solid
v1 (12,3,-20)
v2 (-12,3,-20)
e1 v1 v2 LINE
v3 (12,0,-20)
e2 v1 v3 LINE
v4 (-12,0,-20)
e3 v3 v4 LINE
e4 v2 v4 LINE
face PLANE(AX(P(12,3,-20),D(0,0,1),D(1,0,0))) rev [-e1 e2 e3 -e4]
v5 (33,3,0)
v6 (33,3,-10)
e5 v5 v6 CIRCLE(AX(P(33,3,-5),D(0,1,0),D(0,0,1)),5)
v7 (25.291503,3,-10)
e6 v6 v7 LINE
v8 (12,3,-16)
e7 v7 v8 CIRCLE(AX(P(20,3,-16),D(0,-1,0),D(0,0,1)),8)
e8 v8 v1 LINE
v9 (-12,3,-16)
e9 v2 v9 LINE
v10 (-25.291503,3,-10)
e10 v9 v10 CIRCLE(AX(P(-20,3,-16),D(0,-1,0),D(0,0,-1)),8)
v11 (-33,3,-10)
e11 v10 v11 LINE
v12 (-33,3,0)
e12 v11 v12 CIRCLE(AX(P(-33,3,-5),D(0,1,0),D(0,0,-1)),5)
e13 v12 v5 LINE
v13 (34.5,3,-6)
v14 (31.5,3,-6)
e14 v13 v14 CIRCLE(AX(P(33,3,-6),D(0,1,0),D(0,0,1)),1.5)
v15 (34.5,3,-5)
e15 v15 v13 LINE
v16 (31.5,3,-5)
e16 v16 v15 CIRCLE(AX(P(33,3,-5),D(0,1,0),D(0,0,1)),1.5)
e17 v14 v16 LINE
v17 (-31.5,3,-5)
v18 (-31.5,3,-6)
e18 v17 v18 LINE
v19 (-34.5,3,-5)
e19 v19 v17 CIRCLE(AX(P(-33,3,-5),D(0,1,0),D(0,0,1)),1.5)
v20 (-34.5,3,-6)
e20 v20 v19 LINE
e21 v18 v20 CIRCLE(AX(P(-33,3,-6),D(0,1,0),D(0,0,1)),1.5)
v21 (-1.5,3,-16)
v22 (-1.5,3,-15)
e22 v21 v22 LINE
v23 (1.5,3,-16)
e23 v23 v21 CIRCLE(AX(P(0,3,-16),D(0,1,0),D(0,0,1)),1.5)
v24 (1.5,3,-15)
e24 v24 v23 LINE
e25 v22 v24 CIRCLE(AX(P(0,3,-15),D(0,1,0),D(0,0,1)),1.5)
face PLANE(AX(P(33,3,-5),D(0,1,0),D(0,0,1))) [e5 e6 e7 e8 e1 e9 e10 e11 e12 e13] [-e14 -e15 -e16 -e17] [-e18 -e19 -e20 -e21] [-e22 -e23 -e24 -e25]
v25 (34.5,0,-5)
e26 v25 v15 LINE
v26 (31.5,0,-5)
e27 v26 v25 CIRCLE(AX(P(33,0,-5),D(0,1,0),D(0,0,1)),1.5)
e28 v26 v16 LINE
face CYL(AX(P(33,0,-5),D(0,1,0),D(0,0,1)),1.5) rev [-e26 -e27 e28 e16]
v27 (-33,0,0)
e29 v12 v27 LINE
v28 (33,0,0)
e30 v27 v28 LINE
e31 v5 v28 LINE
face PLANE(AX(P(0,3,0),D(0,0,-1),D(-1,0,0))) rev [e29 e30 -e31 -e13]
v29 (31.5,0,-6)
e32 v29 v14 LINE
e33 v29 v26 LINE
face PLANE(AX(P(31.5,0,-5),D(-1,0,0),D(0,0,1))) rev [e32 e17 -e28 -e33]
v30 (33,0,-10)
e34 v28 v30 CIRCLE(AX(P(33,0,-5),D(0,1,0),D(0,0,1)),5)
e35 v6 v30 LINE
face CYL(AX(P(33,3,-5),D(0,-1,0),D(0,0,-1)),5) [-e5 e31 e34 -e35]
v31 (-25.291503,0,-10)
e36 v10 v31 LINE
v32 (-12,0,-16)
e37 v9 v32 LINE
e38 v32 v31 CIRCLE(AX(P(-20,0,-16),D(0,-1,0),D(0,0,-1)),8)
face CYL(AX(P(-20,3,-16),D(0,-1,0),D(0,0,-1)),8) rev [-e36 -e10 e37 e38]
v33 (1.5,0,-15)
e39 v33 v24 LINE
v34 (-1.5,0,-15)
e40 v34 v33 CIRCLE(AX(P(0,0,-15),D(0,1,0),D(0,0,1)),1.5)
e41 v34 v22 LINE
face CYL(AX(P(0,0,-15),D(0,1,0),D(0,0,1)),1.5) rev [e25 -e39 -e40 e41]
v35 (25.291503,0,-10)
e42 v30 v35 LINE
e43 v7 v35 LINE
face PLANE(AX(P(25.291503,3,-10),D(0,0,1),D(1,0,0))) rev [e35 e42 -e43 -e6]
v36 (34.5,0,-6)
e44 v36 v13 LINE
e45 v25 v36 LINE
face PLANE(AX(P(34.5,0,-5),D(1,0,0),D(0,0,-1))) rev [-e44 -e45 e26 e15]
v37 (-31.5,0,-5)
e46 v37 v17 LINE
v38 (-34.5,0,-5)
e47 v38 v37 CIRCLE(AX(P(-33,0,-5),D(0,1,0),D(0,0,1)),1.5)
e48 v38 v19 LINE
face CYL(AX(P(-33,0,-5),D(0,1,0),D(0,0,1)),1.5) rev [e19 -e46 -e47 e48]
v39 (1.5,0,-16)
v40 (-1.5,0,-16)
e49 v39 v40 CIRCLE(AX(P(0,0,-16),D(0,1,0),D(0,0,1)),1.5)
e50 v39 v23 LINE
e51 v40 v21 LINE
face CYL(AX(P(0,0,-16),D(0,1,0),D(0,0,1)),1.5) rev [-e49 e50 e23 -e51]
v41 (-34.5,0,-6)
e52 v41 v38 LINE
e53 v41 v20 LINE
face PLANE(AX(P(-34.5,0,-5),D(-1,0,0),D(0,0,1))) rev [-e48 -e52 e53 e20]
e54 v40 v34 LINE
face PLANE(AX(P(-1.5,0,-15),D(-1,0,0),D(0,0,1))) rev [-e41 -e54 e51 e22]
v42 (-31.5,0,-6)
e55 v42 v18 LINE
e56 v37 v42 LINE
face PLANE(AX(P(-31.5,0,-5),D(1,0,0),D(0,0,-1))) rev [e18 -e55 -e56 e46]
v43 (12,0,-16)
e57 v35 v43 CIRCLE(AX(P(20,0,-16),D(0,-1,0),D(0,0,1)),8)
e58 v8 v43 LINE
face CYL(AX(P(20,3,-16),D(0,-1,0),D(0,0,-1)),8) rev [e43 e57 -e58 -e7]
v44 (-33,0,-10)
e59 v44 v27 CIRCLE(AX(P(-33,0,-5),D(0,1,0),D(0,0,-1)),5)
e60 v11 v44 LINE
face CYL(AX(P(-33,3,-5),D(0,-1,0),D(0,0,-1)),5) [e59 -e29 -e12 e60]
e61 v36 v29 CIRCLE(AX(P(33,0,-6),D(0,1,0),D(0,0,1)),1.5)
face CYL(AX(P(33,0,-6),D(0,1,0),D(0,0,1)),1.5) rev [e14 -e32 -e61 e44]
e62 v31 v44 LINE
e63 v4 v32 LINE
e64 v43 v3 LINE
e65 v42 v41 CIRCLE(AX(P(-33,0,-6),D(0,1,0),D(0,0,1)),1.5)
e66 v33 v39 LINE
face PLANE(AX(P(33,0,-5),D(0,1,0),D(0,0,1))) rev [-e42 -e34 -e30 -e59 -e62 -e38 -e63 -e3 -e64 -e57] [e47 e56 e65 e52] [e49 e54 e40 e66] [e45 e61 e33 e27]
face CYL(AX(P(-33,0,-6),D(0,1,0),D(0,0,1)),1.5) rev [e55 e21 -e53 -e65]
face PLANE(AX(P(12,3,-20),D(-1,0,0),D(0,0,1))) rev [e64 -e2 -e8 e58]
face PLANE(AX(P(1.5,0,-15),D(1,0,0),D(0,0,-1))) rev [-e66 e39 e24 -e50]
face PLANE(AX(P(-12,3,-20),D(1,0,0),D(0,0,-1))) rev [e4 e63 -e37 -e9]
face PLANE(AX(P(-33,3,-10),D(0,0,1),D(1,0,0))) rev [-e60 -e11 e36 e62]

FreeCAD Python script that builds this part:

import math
import FreeCAD as App
import Part
import Sketcher
from FreeCAD import Vector

doc = App.newDocument("Part")
body = doc.addObject("PartDesign::Body", "Body")

# Sketch on XZ plane
sketch1 = body.newObject("Sketcher::SketchObject", "Sketch")
sketch1.AttachmentSupport = (doc.getObject("XZ_Plane"), [""])
sketch1.MapMode = "FlatFace"
sketch1.addGeometry([
    Part.ArcOfCircle(Part.Circle(Vector(-33, -5, 0), Vector(0, 0, 1), 5), math.radians(90), math.radians(270)),  # 0
    Part.LineSegment(Vector(-33, 0, 0), Vector(33, 0, 0)),  # 1
    Part.ArcOfCircle(Part.Circle(Vector(33, -5, 0), Vector(0, 0, 1), 5), math.radians(-90), math.radians(90)),  # 2
    Part.LineSegment(Vector(33, -10, 0), Vector(25.3, -10, 0)),  # 3
    Part.ArcOfCircle(Part.Circle(Vector(20, -16, 0), Vector(0, 0, 1), 8), math.radians(49), math.radians(180)),  # 4
    Part.LineSegment(Vector(12, -16, 0), Vector(12, -20, 0)),  # 5
    Part.LineSegment(Vector(12, -20, 0), Vector(-12, -20, 0)),  # 6
    Part.LineSegment(Vector(-12, -20, 0), Vector(-12, -16, 0)),  # 7
    Part.ArcOfCircle(Part.Circle(Vector(-20, -16, 0), Vector(0, 0, 1), 8), math.radians(0), math.radians(131)),  # 8
    Part.LineSegment(Vector(-25.3, -10, 0), Vector(-33, -10, 0)),  # 9
], False)
sketch1.addConstraint([
    Sketcher.Constraint("Tangent", 0, 1, 1, 1),
    Sketcher.Constraint("Tangent", 1, 2, 2, 2),
    Sketcher.Constraint("Tangent", 2, 1, 3, 1),
    Sketcher.Constraint("Coincident", 3, 2, 4, 1),
    Sketcher.Constraint("Tangent", 4, 2, 5, 1),
    Sketcher.Constraint("Coincident", 5, 2, 6, 1),
    Sketcher.Constraint("Coincident", 6, 2, 7, 1),
    Sketcher.Constraint("Tangent", 7, 2, 8, 1),
    Sketcher.Constraint("Coincident", 8, 2, 9, 1),
    Sketcher.Constraint("Tangent", 9, 2, 0, 2),
    Sketcher.Constraint("Horizontal", 1),
    Sketcher.Constraint("Horizontal", 3),
    Sketcher.Constraint("Vertical", 5),
    Sketcher.Constraint("Horizontal", 6),
    Sketcher.Constraint("Vertical", 7),
    Sketcher.Constraint("Horizontal", 9),
    Sketcher.Constraint("Equal", 0, 2),
    Sketcher.Constraint("Equal", 4, 8),
    Sketcher.Constraint("Symmetric", 0, 1, 1, 2, -1, 1),
    Sketcher.Constraint("Symmetric", 4, 3, 8, 3, -2),
    Sketcher.Constraint("Radius", 0, 5.0),
    Sketcher.Constraint("Radius", 4, 8.0),
    Sketcher.Constraint("DistanceX", 1, 1, 1, 2, 66.0),
    Sketcher.Constraint("DistanceX", 6, 2, 6, 1, 24.0),
    Sketcher.Constraint("DistanceY", 5, 2, 5, 1, 4.0),
    Sketcher.Constraint("DistanceY", 4, 3, -1, 1, 16.0),
])
pad1 = body.newObject("PartDesign::Pad", "Pad")
pad1.Profile = sketch1
pad1.Length = 3
pad1.Reversed = True

# Sketch on XZ plane
sketch2 = body.newObject("Sketcher::SketchObject", "Sketch001")
sketch2.AttachmentSupport = (doc.getObject("XZ_Plane"), [""])
sketch2.MapMode = "FlatFace"
sketch2.AttachmentOffset = App.Placement(Vector(0, 0, -3), App.Rotation())
sketch2.addGeometry([
    Part.LineSegment(Vector(-34.5, -6, 0), Vector(-34.5, -5, 0)),  # 0
    Part.ArcOfCircle(Part.Circle(Vector(-33, -5, 0), Vector(0, 0, 1), 1.5), math.radians(0), math.radians(180)),  # 1
    Part.LineSegment(Vector(-31.5, -5, 0), Vector(-31.5, -6, 0)),  # 2
    Part.ArcOfCircle(Part.Circle(Vector(-33, -6, 0), Vector(0, 0, 1), 1.5), math.radians(180), math.radians(360)),  # 3
    Part.LineSegment(Vector(31.5, -6, 0), Vector(31.5, -5, 0)),  # 4
    Part.ArcOfCircle(Part.Circle(Vector(33, -5, 0), Vector(0, 0, 1), 1.5), math.radians(0), math.radians(180)),  # 5
    Part.LineSegment(Vector(34.5, -5, 0), Vector(34.5, -6, 0)),  # 6
    Part.ArcOfCircle(Part.Circle(Vector(33, -6, 0), Vector(0, 0, 1), 1.5), math.radians(180), math.radians(360)),  # 7
    Part.LineSegment(Vector(-1.5, -16, 0), Vector(-1.5, -15, 0)),  # 8
    Part.ArcOfCircle(Part.Circle(Vector(0, -15, 0), Vector(0, 0, 1), 1.5), math.radians(0), math.radians(180)),  # 9
    Part.LineSegment(Vector(1.5, -15, 0), Vector(1.5, -16, 0)),  # 10
    Part.ArcOfCircle(Part.Circle(Vector(0, -16, 0), Vector(0, 0, 1), 1.5), math.radians(180), math.radians(360)),  # 11
], False)
sketch2.addConstraint([
    Sketcher.Constraint("Tangent", 0, 2, 1, 2),
    Sketcher.Constraint("Tangent", 1, 1, 2, 1),
    Sketcher.Constraint("Tangent", 2, 2, 3, 2),
    Sketcher.Constraint("Tangent", 3, 1, 0, 1),
    Sketcher.Constraint("Tangent", 4, 2, 5, 2),
    Sketcher.Constraint("Tangent", 5, 1, 6, 1),
    Sketcher.Constraint("Tangent", 6, 2, 7, 2),
    Sketcher.Constraint("Tangent", 7, 1, 4, 1),
    Sketcher.Constraint("Tangent", 8, 2, 9, 2),
    Sketcher.Constraint("Tangent", 9, 1, 10, 1),
    Sketcher.Constraint("Tangent", 10, 2, 11, 2),
    Sketcher.Constraint("Tangent", 11, 1, 8, 1),
    Sketcher.Constraint("Vertical", 0),
    Sketcher.Constraint("Vertical", 2),
    Sketcher.Constraint("Vertical", 4),
    Sketcher.Constraint("Vertical", 6),
    Sketcher.Constraint("Vertical", 8),
    Sketcher.Constraint("Vertical", 10),
    Sketcher.Constraint("Equal", 3, 5),
    Sketcher.Constraint("Equal", 7, 9),
    Sketcher.Constraint("Symmetric", 1, 3, 5, 3, -2),
    Sketcher.Constraint("PointOnObject", 9, 3, -2),
    Sketcher.Constraint("Horizontal", 3, 3, 7, 3),
    Sketcher.Constraint("Equal", 6, 8),
    Sketcher.Constraint("Radius", 1, 1.5),
    Sketcher.Constraint("DistanceY", 0, 1, 0, 2, 1.0),
    Sketcher.Constraint("DistanceX", 1, 3, -1, 1, 33.0),
    Sketcher.Constraint("DistanceY", 1, 3, -1, 1, 5.0),
    Sketcher.Constraint("DistanceY", 9, 3, -1, 1, 15.0),
])
pocket1 = body.newObject("PartDesign::Pocket", "Pocket")
pocket1.Profile = sketch2
pocket1.Type = "ThroughAll"
pocket1.Reversed = True

doc.recompute()
